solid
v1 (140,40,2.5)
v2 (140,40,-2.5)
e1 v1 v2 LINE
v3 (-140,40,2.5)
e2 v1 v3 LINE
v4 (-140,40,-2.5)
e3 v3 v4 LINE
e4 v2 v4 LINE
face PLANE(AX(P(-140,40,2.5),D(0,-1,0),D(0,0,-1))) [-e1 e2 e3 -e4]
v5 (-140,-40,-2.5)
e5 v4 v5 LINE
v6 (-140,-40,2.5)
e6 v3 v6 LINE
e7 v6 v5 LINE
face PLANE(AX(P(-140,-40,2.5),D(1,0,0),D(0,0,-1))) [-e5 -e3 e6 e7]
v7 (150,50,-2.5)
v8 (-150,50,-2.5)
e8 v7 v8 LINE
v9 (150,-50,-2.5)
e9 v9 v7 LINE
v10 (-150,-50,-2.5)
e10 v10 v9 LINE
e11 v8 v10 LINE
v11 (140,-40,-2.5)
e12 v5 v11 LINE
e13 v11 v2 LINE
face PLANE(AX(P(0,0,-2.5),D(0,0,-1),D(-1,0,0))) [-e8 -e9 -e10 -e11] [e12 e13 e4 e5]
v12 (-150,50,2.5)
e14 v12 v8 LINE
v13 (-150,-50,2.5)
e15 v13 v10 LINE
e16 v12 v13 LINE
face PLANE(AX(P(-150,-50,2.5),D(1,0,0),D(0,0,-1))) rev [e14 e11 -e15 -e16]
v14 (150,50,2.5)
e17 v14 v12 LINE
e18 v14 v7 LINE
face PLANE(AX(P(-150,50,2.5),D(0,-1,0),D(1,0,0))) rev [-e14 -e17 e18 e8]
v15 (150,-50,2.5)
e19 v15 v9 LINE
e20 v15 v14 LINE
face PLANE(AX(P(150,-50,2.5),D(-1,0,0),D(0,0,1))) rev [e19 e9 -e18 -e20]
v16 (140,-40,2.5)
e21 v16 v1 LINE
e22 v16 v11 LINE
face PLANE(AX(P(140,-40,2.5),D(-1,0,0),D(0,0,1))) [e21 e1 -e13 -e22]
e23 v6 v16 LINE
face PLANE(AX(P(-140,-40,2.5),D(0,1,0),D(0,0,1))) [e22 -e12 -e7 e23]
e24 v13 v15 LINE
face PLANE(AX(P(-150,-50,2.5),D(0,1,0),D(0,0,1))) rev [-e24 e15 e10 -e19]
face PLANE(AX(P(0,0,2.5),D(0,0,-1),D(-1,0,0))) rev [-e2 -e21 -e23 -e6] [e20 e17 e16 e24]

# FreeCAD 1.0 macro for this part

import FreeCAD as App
import Part
import Sketcher


def add_polygon(sketch, points):
    """Adds a closed chain of lines whose ends are joined by coincident constraints."""
    first, n = sketch.GeometryCount, len(points)
    for a, b in zip(points, points[1:] + points[:1]):
        sketch.addGeometry(Part.LineSegment(App.Vector(*a, 0), App.Vector(*b, 0)), False)
    for i in range(n):
        sketch.addConstraint(Sketcher.Constraint("Coincident", first + i, 2, first + (i + 1) % n, 1))

doc = App.newDocument("Part")
body = doc.addObject("PartDesign::Body", "Body")

sketch1 = doc.addObject("Sketcher::SketchObject", "Sketch")
body.addObject(sketch1)
sketch1.AttachmentSupport = (doc.XY_Plane, [""])
sketch1.MapMode = "FlatFace"
add_polygon(sketch1, [(-150, 50), (-150, -50), (150, -50), (150, 50)])
add_polygon(sketch1, [(140, -40), (-140, -40), (-140, 40), (140, 40)])
sketch1.addConstraint(Sketcher.Constraint("Vertical", 0))
sketch1.addConstraint(Sketcher.Constraint("Horizontal", 1))
sketch1.addConstraint(Sketcher.Constraint("Vertical", 2))
sketch1.addConstraint(Sketcher.Constraint("Horizontal", 3))
sketch1.addConstraint(Sketcher.Constraint("Horizontal", 4))
sketch1.addConstraint(Sketcher.Constraint("Vertical", 5))
sketch1.addConstraint(Sketcher.Constraint("Horizontal", 6))
sketch1.addConstraint(Sketcher.Constraint("Vertical", 7))
sketch1.addConstraint(Sketcher.Constraint("Symmetric", 0, 2, 2, 2, -1, 1))
sketch1.addConstraint(Sketcher.Constraint("Symmetric", 4, 2, 6, 2, -1, 1))
sketch1.addConstraint(Sketcher.Constraint("DistanceX", 1, 1, 1, 2, 300.0))
sketch1.addConstraint(Sketcher.Constraint("DistanceX", 4, 2, 4, 1, 280.0))
sketch1.addConstraint(Sketcher.Constraint("DistanceY", 0, 2, 0, 1, 100.0))
sketch1.addConstraint(Sketcher.Constraint("DistanceY", 5, 1, 5, 2, 80.0))
pad1 = doc.addObject("PartDesign::Pad", "Pad")
body.addObject(pad1)
pad1.Profile = sketch1
pad1.Length = 5
pad1.Midplane = True

doc.recompute()
